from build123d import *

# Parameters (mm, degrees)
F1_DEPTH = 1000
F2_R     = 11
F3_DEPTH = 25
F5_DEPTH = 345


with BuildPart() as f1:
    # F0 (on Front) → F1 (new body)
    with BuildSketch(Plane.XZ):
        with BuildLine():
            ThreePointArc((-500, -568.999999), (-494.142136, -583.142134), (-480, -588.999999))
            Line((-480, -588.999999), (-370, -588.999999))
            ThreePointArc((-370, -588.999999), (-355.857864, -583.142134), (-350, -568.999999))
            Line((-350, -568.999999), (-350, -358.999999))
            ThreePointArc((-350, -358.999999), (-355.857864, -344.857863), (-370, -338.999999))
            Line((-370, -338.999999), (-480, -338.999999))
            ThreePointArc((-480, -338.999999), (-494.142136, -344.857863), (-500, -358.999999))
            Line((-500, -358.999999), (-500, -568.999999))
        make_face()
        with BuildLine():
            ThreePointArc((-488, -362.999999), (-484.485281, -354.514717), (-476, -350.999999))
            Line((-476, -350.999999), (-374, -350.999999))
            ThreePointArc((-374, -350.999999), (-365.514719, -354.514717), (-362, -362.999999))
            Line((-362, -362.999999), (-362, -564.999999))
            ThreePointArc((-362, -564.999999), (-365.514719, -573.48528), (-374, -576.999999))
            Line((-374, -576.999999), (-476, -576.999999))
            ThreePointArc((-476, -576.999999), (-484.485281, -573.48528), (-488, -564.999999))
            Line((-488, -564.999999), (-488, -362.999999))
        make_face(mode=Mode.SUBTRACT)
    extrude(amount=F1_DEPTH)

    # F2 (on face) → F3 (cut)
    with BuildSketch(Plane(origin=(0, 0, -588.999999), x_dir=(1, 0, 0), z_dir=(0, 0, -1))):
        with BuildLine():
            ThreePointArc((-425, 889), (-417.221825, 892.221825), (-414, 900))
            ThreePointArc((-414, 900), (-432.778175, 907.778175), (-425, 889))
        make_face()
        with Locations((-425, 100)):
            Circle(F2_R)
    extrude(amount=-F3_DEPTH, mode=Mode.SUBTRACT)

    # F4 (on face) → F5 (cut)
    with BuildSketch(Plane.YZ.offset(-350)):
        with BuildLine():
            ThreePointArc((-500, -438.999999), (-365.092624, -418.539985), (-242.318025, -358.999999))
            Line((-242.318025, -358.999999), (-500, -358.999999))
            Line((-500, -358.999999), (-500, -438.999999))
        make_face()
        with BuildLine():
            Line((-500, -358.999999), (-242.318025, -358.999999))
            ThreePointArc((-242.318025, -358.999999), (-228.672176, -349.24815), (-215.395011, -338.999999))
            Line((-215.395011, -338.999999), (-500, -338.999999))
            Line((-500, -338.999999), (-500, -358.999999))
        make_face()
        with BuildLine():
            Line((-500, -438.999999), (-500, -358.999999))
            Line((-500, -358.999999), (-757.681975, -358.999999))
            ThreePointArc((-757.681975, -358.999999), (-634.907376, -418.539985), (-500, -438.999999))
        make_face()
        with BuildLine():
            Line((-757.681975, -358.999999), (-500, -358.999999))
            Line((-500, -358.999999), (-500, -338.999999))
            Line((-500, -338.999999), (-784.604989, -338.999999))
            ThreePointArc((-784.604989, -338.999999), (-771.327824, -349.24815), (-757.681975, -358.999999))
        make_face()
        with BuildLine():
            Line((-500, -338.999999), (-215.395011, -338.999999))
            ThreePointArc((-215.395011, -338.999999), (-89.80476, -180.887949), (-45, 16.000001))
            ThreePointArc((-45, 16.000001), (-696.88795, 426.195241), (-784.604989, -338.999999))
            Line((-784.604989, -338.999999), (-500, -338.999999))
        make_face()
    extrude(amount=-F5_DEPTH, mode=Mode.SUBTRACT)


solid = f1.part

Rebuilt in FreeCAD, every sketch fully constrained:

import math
import FreeCAD as App
import Part
import Sketcher

V = App.Vector

doc = App.newDocument("Part")
body = doc.addObject("PartDesign::Body", "Body")

sketch1 = body.newObject("Sketcher::SketchObject", "Sketch")
sketch1.AttachmentSupport = (doc.getObject("XZ_Plane"), [""])
sketch1.MapMode = "FlatFace"
sketch1.addGeometry(Part.ArcOfCircle(Part.Circle(V(-480, -569, 0), V(0, 0, 1), 20), math.radians(-180), math.radians(-90)), False)
sketch1.addGeometry(Part.LineSegment(V(-480, -589, 0), V(-370, -589, 0)), False)
sketch1.addGeometry(Part.ArcOfCircle(Part.Circle(V(-370, -569, 0), V(0, 0, 1), 20), math.radians(-90), math.radians(0)), False)
sketch1.addGeometry(Part.LineSegment(V(-350, -569, 0), V(-350, -359, 0)), False)
sketch1.addGeometry(Part.ArcOfCircle(Part.Circle(V(-370, -359, 0), V(0, 0, 1), 20), math.radians(0), math.radians(90)), False)
sketch1.addGeometry(Part.LineSegment(V(-370, -339, 0), V(-480, -339, 0)), False)
sketch1.addGeometry(Part.ArcOfCircle(Part.Circle(V(-480, -359, 0), V(0, 0, 1), 20), math.radians(90), math.radians(180)), False)
sketch1.addGeometry(Part.LineSegment(V(-500, -359, 0), V(-500, -569, 0)), False)
sketch1.addGeometry(Part.LineSegment(V(-488, -565, 0), V(-488, -363, 0)), False)
sketch1.addGeometry(Part.ArcOfCircle(Part.Circle(V(-476, -363, 0), V(0, 0, 1), 12), math.radians(90), math.radians(180)), False)
sketch1.addGeometry(Part.LineSegment(V(-476, -351, 0), V(-374, -351, 0)), False)
sketch1.addGeometry(Part.ArcOfCircle(Part.Circle(V(-374, -363, 0), V(0, 0, 1), 12), math.radians(0), math.radians(90)), False)
sketch1.addGeometry(Part.LineSegment(V(-362, -363, 0), V(-362, -565, 0)), False)
sketch1.addGeometry(Part.ArcOfCircle(Part.Circle(V(-374, -565, 0), V(0, 0, 1), 12), math.radians(-90), math.radians(0)), False)
sketch1.addGeometry(Part.LineSegment(V(-374, -577, 0), V(-476, -577, 0)), False)
sketch1.addGeometry(Part.ArcOfCircle(Part.Circle(V(-476, -565, 0), V(0, 0, 1), 12), math.radians(-180), math.radians(-90)), False)
sketch1.addConstraint(Sketcher.Constraint("Tangent", 0, 2, 1, 1))
sketch1.addConstraint(Sketcher.Constraint("Tangent", 1, 2, 2, 1))
sketch1.addConstraint(Sketcher.Constraint("Tangent", 2, 2, 3, 1))
sketch1.addConstraint(Sketcher.Constraint("Tangent", 3, 2, 4, 1))
sketch1.addConstraint(Sketcher.Constraint("Tangent", 4, 2, 5, 1))
sketch1.addConstraint(Sketcher.Constraint("Tangent", 5, 2, 6, 1))
sketch1.addConstraint(Sketcher.Constraint("Tangent", 6, 2, 7, 1))
sketch1.addConstraint(Sketcher.Constraint("Tangent", 7, 2, 0, 1))
sketch1.addConstraint(Sketcher.Constraint("Tangent", 8, 2, 9, 2))
sketch1.addConstraint(Sketcher.Constraint("Tangent", 9, 1, 10, 1))
sketch1.addConstraint(Sketcher.Constraint("Tangent", 10, 2, 11, 2))
sketch1.addConstraint(Sketcher.Constraint("Tangent", 11, 1, 12, 1))
sketch1.addConstraint(Sketcher.Constraint("Tangent", 12, 2, 13, 2))
sketch1.addConstraint(Sketcher.Constraint("Tangent", 13, 1, 14, 1))
sketch1.addConstraint(Sketcher.Constraint("Tangent", 14, 2, 15, 2))
sketch1.addConstraint(Sketcher.Constraint("Tangent", 15, 1, 8, 1))
sketch1.addConstraint(Sketcher.Constraint("Horizontal", 1))
sketch1.addConstraint(Sketcher.Constraint("Vertical", 3))
sketch1.addConstraint(Sketcher.Constraint("Horizontal", 5))
sketch1.addConstraint(Sketcher.Constraint("Vertical", 7))
sketch1.addConstraint(Sketcher.Constraint("Vertical", 8))
sketch1.addConstraint(Sketcher.Constraint("Horizontal", 10))
sketch1.addConstraint(Sketcher.Constraint("Vertical", 12))
sketch1.addConstraint(Sketcher.Constraint("Horizontal", 14))
sketch1.addConstraint(Sketcher.Constraint("Equal", 0, 2))
sketch1.addConstraint(Sketcher.Constraint("Equal", 2, 4))
sketch1.addConstraint(Sketcher.Constraint("Equal", 4, 6))
sketch1.addConstraint(Sketcher.Constraint("Equal", 9, 11))
sketch1.addConstraint(Sketcher.Constraint("Equal", 11, 13))
sketch1.addConstraint(Sketcher.Constraint("Equal", 13, 15))
sketch1.addConstraint(Sketcher.Constraint("Radius", 0, 20.0))
sketch1.addConstraint(Sketcher.Constraint("Radius", 9, 12.0))
sketch1.addConstraint(Sketcher.Constraint("DistanceX", 1, 1, 1, 2, 110.0))
sketch1.addConstraint(Sketcher.Constraint("DistanceX", 10, 1, 10, 2, 102.0))
sketch1.addConstraint(Sketcher.Constraint("DistanceY", 3, 1, 3, 2, 210.0))
sketch1.addConstraint(Sketcher.Constraint("DistanceY", 8, 1, 8, 2, 202.0))
sketch1.addConstraint(Sketcher.Constraint("DistanceX", 0, 3, -1, 1, 480.0))
sketch1.addConstraint(Sketcher.Constraint("DistanceY", 0, 3, -1, 1, 568.999999))
sketch1.addConstraint(Sketcher.Constraint("DistanceX", 9, 3, -1, 1, 476.0))
sketch1.addConstraint(Sketcher.Constraint("DistanceY", 9, 3, -1, 1, 362.999999))
pad1 = body.newObject("PartDesign::Pad", "Pad")
pad1.Profile = sketch1
pad1.Length = 1000

sketch2 = body.newObject("Sketcher::SketchObject", "Sketch001")
sketch2.AttachmentSupport = (doc.getObject("XY_Plane"), [""])
sketch2.MapMode = "FlatFace"
sketch2.AttachmentOffset = App.Placement(V(0, 0, -588.999999), App.Rotation())
sketch2.addGeometry(Part.ArcOfCircle(Part.Circle(V(-425, -900, 0), V(0, 0, 1), 11), math.radians(0), math.radians(90)), False)
sketch2.addGeometry(Part.ArcOfCircle(Part.Circle(V(-425, -900, 0), V(0, 0, 1), 11), math.radians(90), math.radians(360)), False)
sketch2.addGeometry(Part.Circle(V(-425, -100, 0), V(0, 0, 1), 11), False)
sketch2.addConstraint(Sketcher.Constraint("Tangent", 0, 1, 1, 2))
sketch2.addConstraint(Sketcher.Constraint("Coincident", 1, 1, 0, 2))
sketch2.addConstraint(Sketcher.Constraint("Equal", 1, 2))
sketch2.addConstraint(Sketcher.Constraint("Horizontal", 1, 3, 0, 1))
sketch2.addConstraint(Sketcher.Constraint("Vertical", 1, 3, 2, 3))
sketch2.addConstraint(Sketcher.Constraint("Vertical", 2, 3, 1, 1))
sketch2.addConstraint(Sketcher.Constraint("Diameter", 2, 22.0))
sketch2.addConstraint(Sketcher.Constraint("DistanceX", 0, 3, -1, 1, 424.999999))
sketch2.addConstraint(Sketcher.Constraint("DistanceY", 0, 3, -1, 1, 899.999999))
sketch2.addConstraint(Sketcher.Constraint("DistanceY", 2, 3, -1, 1, 100.0))
pocket1 = body.newObject("PartDesign::Pocket", "Pocket")
pocket1.Profile = sketch2
pocket1.Length = 25
pocket1.Reversed = True

sketch3 = body.newObject("Sketcher::SketchObject", "Sketch002")
sketch3.AttachmentSupport = (doc.getObject("YZ_Plane"), [""])
sketch3.MapMode = "FlatFace"
sketch3.AttachmentOffset = App.Placement(V(0, 0, -350), App.Rotation())
sketch3.addGeometry(Part.ArcOfCircle(Part.Circle(V(-500.000004, 16.000015, 0), V(0, 0, 1), 455.000014), math.radians(-90), math.radians(-55.505022)), False)
sketch3.addGeometry(Part.ArcOfCircle(Part.Circle(V(-500.000118, 16.000148, 0), V(0, 0, 1), 455.000188), math.radians(-55.505019), math.radians(-51.280703)), False)
sketch3.addGeometry(Part.ArcOfCircle(Part.Circle(V(-500.000001, 16.000002, 0), V(0, 0, 1), 455.000001), math.radians(-51.280703), math.radians(0)), False)
sketch3.addGeometry(Part.ArcOfCircle(Part.Circle(V(-500, 16.000001, 0), V(0, 0, 1), 455), math.radians(0), math.radians(231.280703)), False)
sketch3.addGeometry(Part.ArcOfCircle(Part.Circle(V(-499.999882, 16.000148, 0), V(0, 0, 1), 455.000188), math.radians(-128.719297), math.radians(-124.494981)), False)
sketch3.addGeometry(Part.ArcOfCircle(Part.Circle(V(-499.999996, 16.000015, 0), V(0, 0, 1), 455.000014), math.radians(-124.494978), math.radians(-90)), False)
sketch3.addConstraint(Sketcher.Constraint("Coincident", 0, 2, 1, 1))
sketch3.addConstraint(Sketcher.Constraint("Coincident", 1, 2, 2, 1))
sketch3.addConstraint(Sketcher.Constraint("Coincident", 2, 2, 3, 1))
sketch3.addConstraint(Sketcher.Constraint("Coincident", 3, 2, 4, 1))
sketch3.addConstraint(Sketcher.Constraint("Coincident", 4, 2, 5, 1))
sketch3.addConstraint(Sketcher.Constraint("Coincident", 5, 2, 0, 1))
sketch3.addConstraint(Sketcher.Constraint("Coincident", 3, 3, 2, 3))
sketch3.addConstraint(Sketcher.Constraint("Coincident", 5, 3, 0, 3))
sketch3.addConstraint(Sketcher.Constraint("Radius", 2, 455.000001))
sketch3.addConstraint(Sketcher.Constraint("DistanceX", 2, 3, -1, 1, 500.000001))
sketch3.addConstraint(Sketcher.Constraint("DistanceY", -1, 1, 2, 3, 16.000002))
sketch3.addConstraint(Sketcher.Constraint("DistanceY", 0, 2, -1, 1, 358.999999))
sketch3.addConstraint(Sketcher.Constraint("DistanceY", 1, 2, -1, 1, 338.999999))
sketch3.addConstraint(Sketcher.Constraint("DistanceY", -1, 1, 2, 2, 16.000001))
sketch3.addConstraint(Sketcher.Constraint("DistanceY", 3, 2, -1, 1, 338.999999))
sketch3.addConstraint(Sketcher.Constraint("DistanceY", 4, 2, -1, 1, 358.999999))
sketch3.addConstraint(Sketcher.Constraint("DistanceX", 5, 2, -1, 1, 500.0))
sketch3.addConstraint(Sketcher.Constraint("DistanceY", 5, 2, -1, 1, 438.999999))
sketch3.addConstraint(Sketcher.Constraint("Radius", 0, 455.000014))
sketch3.addConstraint(Sketcher.Constraint("Radius", 1, 455.000188))
sketch3.addConstraint(Sketcher.Constraint("Radius", 4, 455.000188))
sketch3.addConstraint(Sketcher.Constraint("DistanceX", 1, 3, 3, 3, 0.000118))
pocket2 = body.newObject("PartDesign::Pocket", "Pocket001")
pocket2.Profile = sketch3
pocket2.Length = 345

doc.recompute()
